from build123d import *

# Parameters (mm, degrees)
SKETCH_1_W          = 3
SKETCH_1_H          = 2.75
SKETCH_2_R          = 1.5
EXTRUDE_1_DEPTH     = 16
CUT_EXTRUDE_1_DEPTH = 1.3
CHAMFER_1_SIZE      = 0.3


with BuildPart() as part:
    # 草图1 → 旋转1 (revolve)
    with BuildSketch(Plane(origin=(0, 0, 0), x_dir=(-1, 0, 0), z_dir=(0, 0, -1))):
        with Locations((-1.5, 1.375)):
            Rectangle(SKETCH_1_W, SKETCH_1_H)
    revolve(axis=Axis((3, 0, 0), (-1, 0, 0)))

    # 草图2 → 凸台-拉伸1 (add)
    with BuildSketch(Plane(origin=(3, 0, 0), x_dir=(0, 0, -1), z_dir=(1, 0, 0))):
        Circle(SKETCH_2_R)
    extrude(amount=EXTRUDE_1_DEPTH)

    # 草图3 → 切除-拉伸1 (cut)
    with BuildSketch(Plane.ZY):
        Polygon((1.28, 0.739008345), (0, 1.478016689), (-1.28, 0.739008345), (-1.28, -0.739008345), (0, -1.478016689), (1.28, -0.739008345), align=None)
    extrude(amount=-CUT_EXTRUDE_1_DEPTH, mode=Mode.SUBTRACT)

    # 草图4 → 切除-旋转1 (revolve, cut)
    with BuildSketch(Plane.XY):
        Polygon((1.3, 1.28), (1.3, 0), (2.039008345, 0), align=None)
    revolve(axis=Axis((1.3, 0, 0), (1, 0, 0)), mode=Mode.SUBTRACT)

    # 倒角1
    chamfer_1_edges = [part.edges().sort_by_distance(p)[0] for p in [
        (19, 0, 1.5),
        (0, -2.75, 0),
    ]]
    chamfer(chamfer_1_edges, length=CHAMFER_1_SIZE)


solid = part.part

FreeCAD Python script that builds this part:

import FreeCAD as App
import Part
import Sketcher
from FreeCAD import Vector
Q = App.Units.Quantity


def edges_at(feature, points):
    """Names of the edges that pass closest to the given points."""
    edges = feature.Shape.Edges
    near = lambda p: min(range(len(edges)), key=lambda i: edges[i].distToShape(Part.Vertex(*p))[0])
    return sorted({f"Edge{near(p) + 1}" for p in points})

doc = App.newDocument("Part")
params = doc.addObject("Spreadsheet::Sheet", "Params")
for row, (alias, value) in enumerate([
    ("sketch1_width", "3 mm"),
    ("sketch1_height", "2.75 mm"),
    ("revolution_angle", "360 deg"),
    ("sketch2_diameter", "3 mm"),
    ("pad1_length", "16 mm"),
    ("pocket1_length", "1.3 mm"),
    ("sketch4_height", "1.28 mm"),
    ("groove_angle", "360 deg"),
    ("chamfer_size", "0.3 mm"),
], start=1):
    params.set(f"A{row}", alias)
    params.set(f"B{row}", "=" + value)
    params.setAlias(f"B{row}", alias)

body = doc.addObject("PartDesign::Body", "Body")

# Sketch on XY plane
sketch1 = doc.addObject("Sketcher::SketchObject", "Sketch")
body.addObject(sketch1)
sketch1.AttachmentSupport = (doc.XY_Plane, [""])
sketch1.MapMode = "FlatFace"
sketch1.addGeometry([
    Part.LineSegment(Vector(3, 2.8, 0), Vector(3, 0, 0)),
    Part.LineSegment(Vector(3, 0, 0), Vector(0, 0, 0)),
    Part.LineSegment(Vector(0, 0, 0), Vector(0, 2.8, 0)),
    Part.LineSegment(Vector(0, 2.8, 0), Vector(3, 2.8, 0)),
], False)
sketch1.addConstraint([
    Sketcher.Constraint("Coincident", 0, 2, 1, 1),
    Sketcher.Constraint("Coincident", 1, 2, 2, 1),
    Sketcher.Constraint("Coincident", 2, 2, 3, 1),
    Sketcher.Constraint("Coincident", 3, 2, 0, 1),
    Sketcher.Constraint("Vertical", 0),
    Sketcher.Constraint("Horizontal", 1),
    Sketcher.Constraint("Vertical", 2),
    Sketcher.Constraint("Horizontal", 3),
    Sketcher.Constraint("Coincident", 1, 2, -1, 1),
    Sketcher.Constraint("DistanceX", 1, 2, 1, 1, 3.0),
    Sketcher.Constraint("DistanceY", 0, 2, 0, 1, 2.75),
])
sketch1.setExpression("Constraints[9]", "Params.sketch1_width")
sketch1.setExpression("Constraints[10]", "Params.sketch1_height")
revolution = doc.addObject("PartDesign::Revolution", "Revolution")
body.addObject(revolution)
revolution.Profile = sketch1
revolution.ReferenceAxis = (sketch1, ["H_Axis"])
revolution.setExpression("Angle", "Params.revolution_angle")

# Sketch on YZ plane
sketch2 = doc.addObject("Sketcher::SketchObject", "Sketch001")
body.addObject(sketch2)
sketch2.AttachmentSupport = (doc.YZ_Plane, [""])
sketch2.MapMode = "FlatFace"
sketch2.AttachmentOffset = App.Placement(Vector(0, 0, 3), App.Rotation())
sketch2.addGeometry(Part.Circle(Vector(0, 0, 0), Vector(0, 0, 1), 1.5), False)
sketch2.addConstraint([
    Sketcher.Constraint("Coincident", 0, 3, -1, 1),
    Sketcher.Constraint("Diameter", 0, 3.0),
])
sketch2.setExpression("Constraints[1]", "Params.sketch2_diameter")
pad1 = doc.addObject("PartDesign::Pad", "Pad")
body.addObject(pad1)
pad1.Profile = sketch2
pad1.setExpression("Length", "Params.pad1_length")

# Sketch on YZ plane
sketch3 = doc.addObject("Sketcher::SketchObject", "Sketch002")
body.addObject(sketch3)
sketch3.AttachmentSupport = (doc.YZ_Plane, [""])
sketch3.MapMode = "FlatFace"
sketch3.addGeometry([
    Part.LineSegment(Vector(0.7, 1.3, 0), Vector(1.5, 0, 0)),  # 0
    Part.LineSegment(Vector(1.5, 0, 0), Vector(0.7, -1.3, 0)),  # 1
    Part.LineSegment(Vector(0.7, -1.3, 0), Vector(-0.7, -1.3, 0)),  # 2
    Part.LineSegment(Vector(-0.7, -1.3, 0), Vector(-1.5, 0, 0)),  # 3
    Part.LineSegment(Vector(-1.5, 0, 0), Vector(-0.7, 1.3, 0)),  # 4
    Part.LineSegment(Vector(-0.7, 1.3, 0), Vector(0.7, 1.3, 0)),  # 5
], False)
sketch3.addConstraint([
    Sketcher.Constraint("Coincident", 0, 2, 1, 1),
    Sketcher.Constraint("Coincident", 1, 2, 2, 1),
    Sketcher.Constraint("Coincident", 2, 2, 3, 1),
    Sketcher.Constraint("Coincident", 3, 2, 4, 1),
    Sketcher.Constraint("Coincident", 4, 2, 5, 1),
    Sketcher.Constraint("Coincident", 5, 2, 0, 1),
    Sketcher.Constraint("Horizontal", 2),
    Sketcher.Constraint("Horizontal", 5),
    Sketcher.Constraint("Symmetric", 0, 2, 3, 2, -1, 1),
    Sketcher.Constraint("Symmetric", 1, 2, 4, 2, -1, 1),
    Sketcher.Constraint("PointOnObject", 0, 2, -1),
    Sketcher.Constraint("Parallel", 0, 3),
    Sketcher.Constraint("Vertical", 2, 2, 4, 2),
    Sketcher.Constraint("Angle", 0, Q("-60 deg")),
    Sketcher.Constraint("DistanceY", 1, 2, -1, 1, 1.28),
    Sketcher.Constraint("DistanceX", 2, 2, 2, 1, 1.478017),
])
pocket1 = doc.addObject("PartDesign::Pocket", "Pocket")
body.addObject(pocket1)
pocket1.Profile = sketch3
pocket1.setExpression("Length", "Params.pocket1_length")
pocket1.Reversed = True

# Sketch on XY plane
sketch4 = doc.addObject("Sketcher::SketchObject", "Sketch003")
body.addObject(sketch4)
sketch4.AttachmentSupport = (doc.XY_Plane, [""])
sketch4.MapMode = "FlatFace"
sketch4.addGeometry([
    Part.LineSegment(Vector(1.3, 1.3, 0), Vector(1.3, 0, 0)),
    Part.LineSegment(Vector(1.3, 0, 0), Vector(2, 0, 0)),
    Part.LineSegment(Vector(2, 0, 0), Vector(1.3, 1.3, 0)),
], False)
sketch4.addConstraint([
    Sketcher.Constraint("Coincident", 0, 2, 1, 1),
    Sketcher.Constraint("Coincident", 1, 2, 2, 1),
    Sketcher.Constraint("Coincident", 2, 2, 0, 1),
    Sketcher.Constraint("Vertical", 0),
    Sketcher.Constraint("Horizontal", 1),
    Sketcher.Constraint("PointOnObject", 0, 2, -1),
    Sketcher.Constraint("Angle", 2, Q("120 deg")),
    Sketcher.Constraint("DistanceY", 0, 2, 0, 1, 1.28),
    Sketcher.Constraint("DistanceX", -1, 1, 0, 2, 1.3),
])
sketch4.setExpression("Constraints[7]", "Params.sketch4_height")
groove = doc.addObject("PartDesign::Groove", "Groove")
body.addObject(groove)
groove.Profile = sketch4
groove.ReferenceAxis = (sketch4, ["H_Axis"])
groove.setExpression("Angle", "Params.groove_angle")
doc.recompute()

chamfer = doc.addObject("PartDesign::Chamfer", "Chamfer")
body.addObject(chamfer)
chamfer.Base = (groove, edges_at(groove, [(19, 0, 1.5), (0, -2.75, 0)]))
chamfer.setExpression("Size", "Params.chamfer_size")

doc.recompute()
